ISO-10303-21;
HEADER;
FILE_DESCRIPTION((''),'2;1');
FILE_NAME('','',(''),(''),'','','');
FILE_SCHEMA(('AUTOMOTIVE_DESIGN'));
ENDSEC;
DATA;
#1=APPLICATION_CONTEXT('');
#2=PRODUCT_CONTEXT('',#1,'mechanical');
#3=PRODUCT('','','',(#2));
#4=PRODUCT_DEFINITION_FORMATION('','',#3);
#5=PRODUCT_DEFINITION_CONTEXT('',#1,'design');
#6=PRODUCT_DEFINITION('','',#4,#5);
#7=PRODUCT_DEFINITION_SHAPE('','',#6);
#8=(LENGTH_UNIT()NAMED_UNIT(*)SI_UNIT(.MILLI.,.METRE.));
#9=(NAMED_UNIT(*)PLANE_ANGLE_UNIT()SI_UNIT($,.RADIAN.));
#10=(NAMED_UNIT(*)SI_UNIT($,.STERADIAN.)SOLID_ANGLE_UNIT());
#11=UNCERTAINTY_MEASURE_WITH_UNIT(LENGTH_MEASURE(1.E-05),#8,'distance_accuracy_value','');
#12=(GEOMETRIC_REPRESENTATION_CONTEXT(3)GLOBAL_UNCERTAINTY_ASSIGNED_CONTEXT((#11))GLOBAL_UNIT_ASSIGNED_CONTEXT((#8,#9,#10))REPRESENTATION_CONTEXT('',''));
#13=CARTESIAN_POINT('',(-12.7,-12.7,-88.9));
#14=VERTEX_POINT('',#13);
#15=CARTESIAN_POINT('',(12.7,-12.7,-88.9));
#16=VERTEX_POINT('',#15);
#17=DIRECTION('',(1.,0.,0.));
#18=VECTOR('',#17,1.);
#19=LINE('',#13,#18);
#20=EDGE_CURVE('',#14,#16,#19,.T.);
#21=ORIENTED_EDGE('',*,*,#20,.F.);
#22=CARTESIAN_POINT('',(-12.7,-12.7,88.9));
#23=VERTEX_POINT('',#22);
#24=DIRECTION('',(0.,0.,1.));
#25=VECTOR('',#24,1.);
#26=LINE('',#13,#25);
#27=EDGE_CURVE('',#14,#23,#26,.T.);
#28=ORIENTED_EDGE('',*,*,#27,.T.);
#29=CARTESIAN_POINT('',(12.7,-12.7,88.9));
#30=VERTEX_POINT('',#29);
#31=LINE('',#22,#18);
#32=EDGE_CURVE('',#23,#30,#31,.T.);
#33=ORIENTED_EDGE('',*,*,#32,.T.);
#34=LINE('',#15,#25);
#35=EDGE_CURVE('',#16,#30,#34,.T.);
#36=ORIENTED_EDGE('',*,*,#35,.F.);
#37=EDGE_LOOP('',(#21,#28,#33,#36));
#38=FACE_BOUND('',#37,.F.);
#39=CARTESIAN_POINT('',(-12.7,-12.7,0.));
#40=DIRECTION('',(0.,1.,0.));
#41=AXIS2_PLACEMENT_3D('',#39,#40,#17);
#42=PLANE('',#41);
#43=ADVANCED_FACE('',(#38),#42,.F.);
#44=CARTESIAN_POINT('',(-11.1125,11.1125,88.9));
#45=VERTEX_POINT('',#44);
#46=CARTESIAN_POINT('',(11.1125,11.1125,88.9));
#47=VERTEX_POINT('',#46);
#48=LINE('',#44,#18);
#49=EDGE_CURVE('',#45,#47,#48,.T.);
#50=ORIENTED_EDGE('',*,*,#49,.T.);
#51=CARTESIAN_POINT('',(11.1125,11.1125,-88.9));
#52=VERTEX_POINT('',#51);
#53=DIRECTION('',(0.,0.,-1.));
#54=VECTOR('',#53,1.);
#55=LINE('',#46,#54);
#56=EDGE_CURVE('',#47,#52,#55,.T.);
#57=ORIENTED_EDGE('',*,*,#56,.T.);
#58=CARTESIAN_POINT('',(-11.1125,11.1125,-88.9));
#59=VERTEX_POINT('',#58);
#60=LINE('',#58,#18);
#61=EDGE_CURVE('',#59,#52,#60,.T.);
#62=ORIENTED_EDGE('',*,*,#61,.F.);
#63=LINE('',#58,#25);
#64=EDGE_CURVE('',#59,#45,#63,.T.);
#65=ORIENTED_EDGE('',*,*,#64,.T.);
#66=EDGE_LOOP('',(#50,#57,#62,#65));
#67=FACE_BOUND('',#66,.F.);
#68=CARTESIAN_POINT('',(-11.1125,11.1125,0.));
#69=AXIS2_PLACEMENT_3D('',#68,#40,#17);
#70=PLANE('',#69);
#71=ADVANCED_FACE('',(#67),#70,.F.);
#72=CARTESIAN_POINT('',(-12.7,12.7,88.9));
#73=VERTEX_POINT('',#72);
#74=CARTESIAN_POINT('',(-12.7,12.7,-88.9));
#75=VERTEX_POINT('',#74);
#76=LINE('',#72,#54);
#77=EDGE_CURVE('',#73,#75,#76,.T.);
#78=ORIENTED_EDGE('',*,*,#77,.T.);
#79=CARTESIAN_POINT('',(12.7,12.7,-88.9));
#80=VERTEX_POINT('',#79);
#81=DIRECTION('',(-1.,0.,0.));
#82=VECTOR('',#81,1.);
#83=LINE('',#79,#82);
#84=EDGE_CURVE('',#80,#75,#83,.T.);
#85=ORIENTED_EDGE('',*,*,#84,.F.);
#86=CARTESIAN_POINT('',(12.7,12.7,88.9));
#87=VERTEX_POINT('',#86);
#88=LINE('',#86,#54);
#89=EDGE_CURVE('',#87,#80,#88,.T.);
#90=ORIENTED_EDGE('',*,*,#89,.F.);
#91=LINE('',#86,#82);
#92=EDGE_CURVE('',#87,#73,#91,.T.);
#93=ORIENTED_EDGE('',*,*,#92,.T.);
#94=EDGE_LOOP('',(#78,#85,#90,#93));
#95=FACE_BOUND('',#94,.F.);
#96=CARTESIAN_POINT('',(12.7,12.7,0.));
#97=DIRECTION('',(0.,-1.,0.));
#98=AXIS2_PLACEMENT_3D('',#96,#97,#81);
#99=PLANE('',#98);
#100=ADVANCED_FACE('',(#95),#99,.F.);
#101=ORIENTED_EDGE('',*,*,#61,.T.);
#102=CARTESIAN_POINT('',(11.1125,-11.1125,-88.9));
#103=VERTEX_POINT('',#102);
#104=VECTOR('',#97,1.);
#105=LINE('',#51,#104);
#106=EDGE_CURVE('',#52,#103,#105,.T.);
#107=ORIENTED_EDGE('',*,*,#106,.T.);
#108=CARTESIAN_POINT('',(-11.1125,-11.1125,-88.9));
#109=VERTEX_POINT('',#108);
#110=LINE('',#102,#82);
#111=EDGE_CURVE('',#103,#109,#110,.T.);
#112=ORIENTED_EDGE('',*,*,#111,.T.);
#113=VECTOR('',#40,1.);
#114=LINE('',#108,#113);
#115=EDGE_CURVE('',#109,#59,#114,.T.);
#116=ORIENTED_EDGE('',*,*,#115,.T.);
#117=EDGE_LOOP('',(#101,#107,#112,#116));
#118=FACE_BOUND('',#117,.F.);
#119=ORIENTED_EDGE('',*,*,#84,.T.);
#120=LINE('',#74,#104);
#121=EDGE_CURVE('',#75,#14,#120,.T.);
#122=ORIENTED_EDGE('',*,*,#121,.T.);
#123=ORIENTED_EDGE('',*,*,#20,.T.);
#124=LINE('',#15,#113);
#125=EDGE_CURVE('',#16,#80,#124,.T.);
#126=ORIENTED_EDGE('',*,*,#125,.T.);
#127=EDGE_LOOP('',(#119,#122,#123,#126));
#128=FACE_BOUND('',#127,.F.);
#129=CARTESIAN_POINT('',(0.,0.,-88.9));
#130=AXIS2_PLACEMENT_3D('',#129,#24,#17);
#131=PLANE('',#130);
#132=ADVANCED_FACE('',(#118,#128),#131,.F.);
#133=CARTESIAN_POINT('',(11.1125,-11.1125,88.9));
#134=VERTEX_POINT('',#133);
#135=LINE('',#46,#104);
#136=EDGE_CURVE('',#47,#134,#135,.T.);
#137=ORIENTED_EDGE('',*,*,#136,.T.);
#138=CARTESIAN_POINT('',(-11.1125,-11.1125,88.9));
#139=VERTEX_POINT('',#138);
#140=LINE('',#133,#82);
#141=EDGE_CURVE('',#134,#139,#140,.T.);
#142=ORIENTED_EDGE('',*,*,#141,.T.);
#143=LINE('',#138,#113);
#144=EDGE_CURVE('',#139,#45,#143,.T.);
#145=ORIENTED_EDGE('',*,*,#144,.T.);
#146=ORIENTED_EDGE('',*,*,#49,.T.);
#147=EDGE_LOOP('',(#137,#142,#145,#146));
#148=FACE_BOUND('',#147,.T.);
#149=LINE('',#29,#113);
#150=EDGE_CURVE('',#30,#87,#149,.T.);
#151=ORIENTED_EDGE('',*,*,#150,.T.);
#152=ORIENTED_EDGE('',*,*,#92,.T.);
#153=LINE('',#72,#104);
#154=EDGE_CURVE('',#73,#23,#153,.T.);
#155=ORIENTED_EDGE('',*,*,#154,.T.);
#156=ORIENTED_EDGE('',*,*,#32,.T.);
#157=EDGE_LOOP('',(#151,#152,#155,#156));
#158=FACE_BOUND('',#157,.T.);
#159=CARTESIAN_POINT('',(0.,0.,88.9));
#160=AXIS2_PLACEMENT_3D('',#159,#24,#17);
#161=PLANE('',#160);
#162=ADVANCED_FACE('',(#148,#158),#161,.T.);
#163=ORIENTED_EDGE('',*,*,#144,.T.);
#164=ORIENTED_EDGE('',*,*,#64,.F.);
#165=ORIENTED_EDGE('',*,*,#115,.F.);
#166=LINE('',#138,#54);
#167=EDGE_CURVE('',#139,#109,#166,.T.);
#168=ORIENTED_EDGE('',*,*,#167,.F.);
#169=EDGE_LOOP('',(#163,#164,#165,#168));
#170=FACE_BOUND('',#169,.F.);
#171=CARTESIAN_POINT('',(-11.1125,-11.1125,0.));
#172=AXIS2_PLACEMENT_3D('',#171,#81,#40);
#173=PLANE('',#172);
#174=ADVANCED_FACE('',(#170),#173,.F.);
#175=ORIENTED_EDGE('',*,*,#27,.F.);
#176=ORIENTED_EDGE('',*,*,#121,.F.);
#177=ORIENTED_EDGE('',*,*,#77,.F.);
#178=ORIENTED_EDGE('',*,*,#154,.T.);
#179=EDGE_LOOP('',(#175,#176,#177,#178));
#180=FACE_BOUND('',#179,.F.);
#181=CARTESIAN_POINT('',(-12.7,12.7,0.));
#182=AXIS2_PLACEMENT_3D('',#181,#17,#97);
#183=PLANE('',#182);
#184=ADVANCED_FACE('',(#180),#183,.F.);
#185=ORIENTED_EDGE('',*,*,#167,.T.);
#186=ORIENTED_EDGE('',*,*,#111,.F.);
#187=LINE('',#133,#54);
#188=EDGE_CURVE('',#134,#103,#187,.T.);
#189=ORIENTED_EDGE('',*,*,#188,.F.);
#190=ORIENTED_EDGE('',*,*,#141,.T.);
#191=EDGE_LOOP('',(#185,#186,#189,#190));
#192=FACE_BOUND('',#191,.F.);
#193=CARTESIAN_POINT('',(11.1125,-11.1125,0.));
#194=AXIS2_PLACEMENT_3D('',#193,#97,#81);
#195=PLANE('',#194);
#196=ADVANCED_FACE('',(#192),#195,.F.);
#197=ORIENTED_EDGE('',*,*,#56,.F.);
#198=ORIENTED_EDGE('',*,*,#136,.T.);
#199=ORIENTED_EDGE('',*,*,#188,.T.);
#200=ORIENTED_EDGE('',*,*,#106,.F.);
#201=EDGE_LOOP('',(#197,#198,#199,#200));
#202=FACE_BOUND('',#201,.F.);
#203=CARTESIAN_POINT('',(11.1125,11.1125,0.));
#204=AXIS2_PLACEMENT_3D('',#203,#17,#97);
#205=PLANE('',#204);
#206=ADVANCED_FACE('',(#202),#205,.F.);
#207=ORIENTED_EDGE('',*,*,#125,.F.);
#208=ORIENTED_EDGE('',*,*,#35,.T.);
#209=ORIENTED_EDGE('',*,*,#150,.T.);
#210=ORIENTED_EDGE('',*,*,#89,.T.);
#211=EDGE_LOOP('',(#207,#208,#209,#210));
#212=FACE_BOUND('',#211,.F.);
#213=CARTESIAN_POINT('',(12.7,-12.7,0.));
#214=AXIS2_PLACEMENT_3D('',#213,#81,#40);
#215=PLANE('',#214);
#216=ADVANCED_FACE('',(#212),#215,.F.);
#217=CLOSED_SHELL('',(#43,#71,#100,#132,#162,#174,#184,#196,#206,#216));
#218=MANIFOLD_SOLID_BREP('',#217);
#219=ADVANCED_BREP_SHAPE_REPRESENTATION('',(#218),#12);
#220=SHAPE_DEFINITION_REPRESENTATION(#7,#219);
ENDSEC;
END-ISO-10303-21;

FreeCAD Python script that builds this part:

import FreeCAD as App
import Part
import Sketcher

V = App.Vector
Q = App.Units.Quantity

doc = App.newDocument("Part")
body = doc.addObject("PartDesign::Body", "Body")

sketch1 = body.newObject("Sketcher::SketchObject", "Sketch")
sketch1.AttachmentSupport = (doc.getObject("XY_Plane"), [""])
sketch1.MapMode = "FlatFace"
sketch1.addGeometry([
    Part.LineSegment(V(-13, 13, 0), V(-13, -13, 0)),
    Part.LineSegment(V(-13, -13, 0), V(13, -13, 0)),
    Part.LineSegment(V(13, -13, 0), V(13, 13, 0)),
    Part.LineSegment(V(13, 13, 0), V(-13, 13, 0)),
    Part.LineSegment(V(-11, -11, 0), V(-11, 11, 0)),
    Part.LineSegment(V(-11, 11, 0), V(11, 11, 0)),
    Part.LineSegment(V(11, 11, 0), V(11, -11, 0)),
    Part.LineSegment(V(11, -11, 0), V(-11, -11, 0)),
], False)
sketch1.addConstraint([
    Sketcher.Constraint("Coincident", 0, 2, 1, 1),
    Sketcher.Constraint("Coincident", 1, 2, 2, 1),
    Sketcher.Constraint("Coincident", 2, 2, 3, 1),
    Sketcher.Constraint("Coincident", 3, 2, 0, 1),
    Sketcher.Constraint("Coincident", 4, 2, 5, 1),
    Sketcher.Constraint("Coincident", 5, 2, 6, 1),
    Sketcher.Constraint("Coincident", 6, 2, 7, 1),
    Sketcher.Constraint("Coincident", 7, 2, 4, 1),
    Sketcher.Constraint("Vertical", 0),
    Sketcher.Constraint("Horizontal", 1),
    Sketcher.Constraint("Vertical", 2),
    Sketcher.Constraint("Horizontal", 3),
    Sketcher.Constraint("Vertical", 4),
    Sketcher.Constraint("Horizontal", 5),
    Sketcher.Constraint("Vertical", 6),
    Sketcher.Constraint("Horizontal", 7),
    Sketcher.Constraint("Symmetric", 0, 2, 2, 2, -1, 1),
    Sketcher.Constraint("Symmetric", 4, 2, 6, 2, -1, 1),
    Sketcher.Constraint("Equal", 3, 0),
    Sketcher.Constraint("Equal", 7, 4),
    Sketcher.Constraint("DistanceX", 1, 1, 1, 2, Q("1 in")),
    Sketcher.Constraint("DistanceX", 3, 2, 4, 2, Q("0.0625 in")),
])
pad1 = body.newObject("PartDesign::Pad", "Pad")
pad1.Profile = sketch1
pad1.Length = Q("7 in")
pad1.Midplane = True

doc.recompute()
